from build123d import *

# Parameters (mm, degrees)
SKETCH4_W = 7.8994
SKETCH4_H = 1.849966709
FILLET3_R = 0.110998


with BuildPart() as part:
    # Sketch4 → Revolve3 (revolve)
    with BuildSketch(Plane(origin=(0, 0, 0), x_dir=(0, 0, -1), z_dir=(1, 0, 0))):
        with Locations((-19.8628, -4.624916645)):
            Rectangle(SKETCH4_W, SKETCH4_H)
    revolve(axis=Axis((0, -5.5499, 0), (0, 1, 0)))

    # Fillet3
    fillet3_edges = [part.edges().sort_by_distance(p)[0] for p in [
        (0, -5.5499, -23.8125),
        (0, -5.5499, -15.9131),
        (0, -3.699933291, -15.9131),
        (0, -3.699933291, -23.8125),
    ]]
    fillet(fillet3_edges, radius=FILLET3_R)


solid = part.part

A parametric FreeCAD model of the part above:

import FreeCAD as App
import Part
import Sketcher

V = App.Vector
Q = App.Units.Quantity


def edges_at(feature, points):
    """Names of the edges that pass closest to the given points."""
    edges = feature.Shape.Edges
    near = lambda p: min(range(len(edges)), key=lambda i: edges[i].distToShape(Part.Vertex(*p))[0])
    return sorted({f"Edge{near(p) + 1}" for p in points})

doc = App.newDocument("Part")
params = doc.addObject("Spreadsheet::Sheet", "Params")
for row, (alias, value) in enumerate([
    ("sketch1_height", "0.311 in"),
    ("revolution_angle", "360 deg"),
    ("fillet_radius", "0.110998 mm"),
], start=1):
    params.set(f"A{row}", alias)
    params.set(f"B{row}", "=" + value)
    params.setAlias(f"B{row}", alias)

body = doc.addObject("PartDesign::Body", "Body")

# Sketch on YZ plane
sketch1 = body.newObject("Sketcher::SketchObject", "Sketch")
sketch1.AttachmentSupport = (doc.getObject("YZ_Plane"), [""])
sketch1.MapMode = "FlatFace"
sketch1.addGeometry(Part.LineSegment(V(-3.7, 23.8, 0), V(-5.5, 23.8, 0)), False)
sketch1.addGeometry(Part.LineSegment(V(-5.5, 23.8, 0), V(-5.5, 15.9, 0)), False)
sketch1.addGeometry(Part.LineSegment(V(-5.5, 15.9, 0), V(-3.7, 15.9, 0)), False)
sketch1.addGeometry(Part.LineSegment(V(-3.7, 15.9, 0), V(-3.7, 23.8, 0)), False)
sketch1.addConstraint(Sketcher.Constraint("Coincident", 0, 2, 1, 1))
sketch1.addConstraint(Sketcher.Constraint("Coincident", 1, 2, 2, 1))
sketch1.addConstraint(Sketcher.Constraint("Coincident", 2, 2, 3, 1))
sketch1.addConstraint(Sketcher.Constraint("Coincident", 3, 2, 0, 1))
sketch1.addConstraint(Sketcher.Constraint("Horizontal", 0))
sketch1.addConstraint(Sketcher.Constraint("Vertical", 1))
sketch1.addConstraint(Sketcher.Constraint("Horizontal", 2))
sketch1.addConstraint(Sketcher.Constraint("Vertical", 3))
sketch1.addConstraint(Sketcher.Constraint("DistanceY", 1, 2, 1, 1, Q("0.311 in")))
sketch1.addConstraint(Sketcher.Constraint("DistanceY", -1, 1, 0, 2, Q("0.9375 in")))
sketch1.addConstraint(Sketcher.Constraint("DistanceX", 0, 2, -1, 1, Q("0.2185 in")))
sketch1.addConstraint(Sketcher.Constraint("DistanceX", 0, 2, 0, 1, 1.849967))
sketch1.setExpression("Constraints[8]", "Params.sketch1_height")
revolution = body.newObject("PartDesign::Revolution", "Revolution")
revolution.Profile = sketch1
revolution.ReferenceAxis = (sketch1, ["H_Axis"])
revolution.setExpression("Angle", "Params.revolution_angle")
doc.recompute()

fillet = body.newObject("PartDesign::Fillet", "Fillet")
fillet.Base = (revolution, edges_at(revolution, [
    (0, -5.55, -23.812),
    (0, -5.55, -15.913),
    (0, -3.7, -15.913),
    (0, -3.7, -23.812),
]))
fillet.setExpression("Radius", "Params.fillet_radius")

doc.recompute()
